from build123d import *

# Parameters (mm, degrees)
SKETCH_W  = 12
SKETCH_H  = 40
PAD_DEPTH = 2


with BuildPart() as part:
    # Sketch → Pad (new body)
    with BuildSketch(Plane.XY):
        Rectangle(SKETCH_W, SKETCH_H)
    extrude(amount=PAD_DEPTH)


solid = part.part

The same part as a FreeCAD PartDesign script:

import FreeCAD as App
import Part
import Sketcher

V = App.Vector

doc = App.newDocument("Part")
params = doc.addObject("Spreadsheet::Sheet", "Params")
for row, (alias, value) in enumerate([
    ("sketch1_width", "12 mm"),
    ("sketch1_height", "40 mm"),
    ("pad1_length", "2 mm"),
], start=1):
    params.set(f"A{row}", alias)
    params.set(f"B{row}", "=" + value)
    params.setAlias(f"B{row}", alias)

body = doc.addObject("PartDesign::Body", "Body")

# Sketch on XY plane
sketch1 = doc.addObject("Sketcher::SketchObject", "Sketch")
body.addObject(sketch1)
sketch1.AttachmentSupport = (doc.XY_Plane, [""])
sketch1.MapMode = "FlatFace"
sketch1.addGeometry([
    Part.LineSegment(V(-6, 20, 0), V(-6, -20, 0)),
    Part.LineSegment(V(-6, -20, 0), V(6, -20, 0)),
    Part.LineSegment(V(6, -20, 0), V(6, 20, 0)),
    Part.LineSegment(V(6, 20, 0), V(-6, 20, 0)),
], False)
sketch1.addConstraint([
    Sketcher.Constraint("Coincident", 0, 2, 1, 1),
    Sketcher.Constraint("Coincident", 1, 2, 2, 1),
    Sketcher.Constraint("Coincident", 2, 2, 3, 1),
    Sketcher.Constraint("Coincident", 3, 2, 0, 1),
    Sketcher.Constraint("Vertical", 0),
    Sketcher.Constraint("Horizontal", 1),
    Sketcher.Constraint("Vertical", 2),
    Sketcher.Constraint("Horizontal", 3),
    Sketcher.Constraint("Symmetric", 0, 2, 2, 2, -1, 1),
    Sketcher.Constraint("DistanceX", 1, 1, 1, 2, 12.0),
    Sketcher.Constraint("DistanceY", 0, 2, 0, 1, 40.0),
])
sketch1.setExpression("Constraints[9]", "Params.sketch1_width")
sketch1.setExpression("Constraints[10]", "Params.sketch1_height")
pad1 = doc.addObject("PartDesign::Pad", "Pad")
body.addObject(pad1)
pad1.Profile = sketch1
pad1.setExpression("Length", "Params.pad1_length")

doc.recompute()
